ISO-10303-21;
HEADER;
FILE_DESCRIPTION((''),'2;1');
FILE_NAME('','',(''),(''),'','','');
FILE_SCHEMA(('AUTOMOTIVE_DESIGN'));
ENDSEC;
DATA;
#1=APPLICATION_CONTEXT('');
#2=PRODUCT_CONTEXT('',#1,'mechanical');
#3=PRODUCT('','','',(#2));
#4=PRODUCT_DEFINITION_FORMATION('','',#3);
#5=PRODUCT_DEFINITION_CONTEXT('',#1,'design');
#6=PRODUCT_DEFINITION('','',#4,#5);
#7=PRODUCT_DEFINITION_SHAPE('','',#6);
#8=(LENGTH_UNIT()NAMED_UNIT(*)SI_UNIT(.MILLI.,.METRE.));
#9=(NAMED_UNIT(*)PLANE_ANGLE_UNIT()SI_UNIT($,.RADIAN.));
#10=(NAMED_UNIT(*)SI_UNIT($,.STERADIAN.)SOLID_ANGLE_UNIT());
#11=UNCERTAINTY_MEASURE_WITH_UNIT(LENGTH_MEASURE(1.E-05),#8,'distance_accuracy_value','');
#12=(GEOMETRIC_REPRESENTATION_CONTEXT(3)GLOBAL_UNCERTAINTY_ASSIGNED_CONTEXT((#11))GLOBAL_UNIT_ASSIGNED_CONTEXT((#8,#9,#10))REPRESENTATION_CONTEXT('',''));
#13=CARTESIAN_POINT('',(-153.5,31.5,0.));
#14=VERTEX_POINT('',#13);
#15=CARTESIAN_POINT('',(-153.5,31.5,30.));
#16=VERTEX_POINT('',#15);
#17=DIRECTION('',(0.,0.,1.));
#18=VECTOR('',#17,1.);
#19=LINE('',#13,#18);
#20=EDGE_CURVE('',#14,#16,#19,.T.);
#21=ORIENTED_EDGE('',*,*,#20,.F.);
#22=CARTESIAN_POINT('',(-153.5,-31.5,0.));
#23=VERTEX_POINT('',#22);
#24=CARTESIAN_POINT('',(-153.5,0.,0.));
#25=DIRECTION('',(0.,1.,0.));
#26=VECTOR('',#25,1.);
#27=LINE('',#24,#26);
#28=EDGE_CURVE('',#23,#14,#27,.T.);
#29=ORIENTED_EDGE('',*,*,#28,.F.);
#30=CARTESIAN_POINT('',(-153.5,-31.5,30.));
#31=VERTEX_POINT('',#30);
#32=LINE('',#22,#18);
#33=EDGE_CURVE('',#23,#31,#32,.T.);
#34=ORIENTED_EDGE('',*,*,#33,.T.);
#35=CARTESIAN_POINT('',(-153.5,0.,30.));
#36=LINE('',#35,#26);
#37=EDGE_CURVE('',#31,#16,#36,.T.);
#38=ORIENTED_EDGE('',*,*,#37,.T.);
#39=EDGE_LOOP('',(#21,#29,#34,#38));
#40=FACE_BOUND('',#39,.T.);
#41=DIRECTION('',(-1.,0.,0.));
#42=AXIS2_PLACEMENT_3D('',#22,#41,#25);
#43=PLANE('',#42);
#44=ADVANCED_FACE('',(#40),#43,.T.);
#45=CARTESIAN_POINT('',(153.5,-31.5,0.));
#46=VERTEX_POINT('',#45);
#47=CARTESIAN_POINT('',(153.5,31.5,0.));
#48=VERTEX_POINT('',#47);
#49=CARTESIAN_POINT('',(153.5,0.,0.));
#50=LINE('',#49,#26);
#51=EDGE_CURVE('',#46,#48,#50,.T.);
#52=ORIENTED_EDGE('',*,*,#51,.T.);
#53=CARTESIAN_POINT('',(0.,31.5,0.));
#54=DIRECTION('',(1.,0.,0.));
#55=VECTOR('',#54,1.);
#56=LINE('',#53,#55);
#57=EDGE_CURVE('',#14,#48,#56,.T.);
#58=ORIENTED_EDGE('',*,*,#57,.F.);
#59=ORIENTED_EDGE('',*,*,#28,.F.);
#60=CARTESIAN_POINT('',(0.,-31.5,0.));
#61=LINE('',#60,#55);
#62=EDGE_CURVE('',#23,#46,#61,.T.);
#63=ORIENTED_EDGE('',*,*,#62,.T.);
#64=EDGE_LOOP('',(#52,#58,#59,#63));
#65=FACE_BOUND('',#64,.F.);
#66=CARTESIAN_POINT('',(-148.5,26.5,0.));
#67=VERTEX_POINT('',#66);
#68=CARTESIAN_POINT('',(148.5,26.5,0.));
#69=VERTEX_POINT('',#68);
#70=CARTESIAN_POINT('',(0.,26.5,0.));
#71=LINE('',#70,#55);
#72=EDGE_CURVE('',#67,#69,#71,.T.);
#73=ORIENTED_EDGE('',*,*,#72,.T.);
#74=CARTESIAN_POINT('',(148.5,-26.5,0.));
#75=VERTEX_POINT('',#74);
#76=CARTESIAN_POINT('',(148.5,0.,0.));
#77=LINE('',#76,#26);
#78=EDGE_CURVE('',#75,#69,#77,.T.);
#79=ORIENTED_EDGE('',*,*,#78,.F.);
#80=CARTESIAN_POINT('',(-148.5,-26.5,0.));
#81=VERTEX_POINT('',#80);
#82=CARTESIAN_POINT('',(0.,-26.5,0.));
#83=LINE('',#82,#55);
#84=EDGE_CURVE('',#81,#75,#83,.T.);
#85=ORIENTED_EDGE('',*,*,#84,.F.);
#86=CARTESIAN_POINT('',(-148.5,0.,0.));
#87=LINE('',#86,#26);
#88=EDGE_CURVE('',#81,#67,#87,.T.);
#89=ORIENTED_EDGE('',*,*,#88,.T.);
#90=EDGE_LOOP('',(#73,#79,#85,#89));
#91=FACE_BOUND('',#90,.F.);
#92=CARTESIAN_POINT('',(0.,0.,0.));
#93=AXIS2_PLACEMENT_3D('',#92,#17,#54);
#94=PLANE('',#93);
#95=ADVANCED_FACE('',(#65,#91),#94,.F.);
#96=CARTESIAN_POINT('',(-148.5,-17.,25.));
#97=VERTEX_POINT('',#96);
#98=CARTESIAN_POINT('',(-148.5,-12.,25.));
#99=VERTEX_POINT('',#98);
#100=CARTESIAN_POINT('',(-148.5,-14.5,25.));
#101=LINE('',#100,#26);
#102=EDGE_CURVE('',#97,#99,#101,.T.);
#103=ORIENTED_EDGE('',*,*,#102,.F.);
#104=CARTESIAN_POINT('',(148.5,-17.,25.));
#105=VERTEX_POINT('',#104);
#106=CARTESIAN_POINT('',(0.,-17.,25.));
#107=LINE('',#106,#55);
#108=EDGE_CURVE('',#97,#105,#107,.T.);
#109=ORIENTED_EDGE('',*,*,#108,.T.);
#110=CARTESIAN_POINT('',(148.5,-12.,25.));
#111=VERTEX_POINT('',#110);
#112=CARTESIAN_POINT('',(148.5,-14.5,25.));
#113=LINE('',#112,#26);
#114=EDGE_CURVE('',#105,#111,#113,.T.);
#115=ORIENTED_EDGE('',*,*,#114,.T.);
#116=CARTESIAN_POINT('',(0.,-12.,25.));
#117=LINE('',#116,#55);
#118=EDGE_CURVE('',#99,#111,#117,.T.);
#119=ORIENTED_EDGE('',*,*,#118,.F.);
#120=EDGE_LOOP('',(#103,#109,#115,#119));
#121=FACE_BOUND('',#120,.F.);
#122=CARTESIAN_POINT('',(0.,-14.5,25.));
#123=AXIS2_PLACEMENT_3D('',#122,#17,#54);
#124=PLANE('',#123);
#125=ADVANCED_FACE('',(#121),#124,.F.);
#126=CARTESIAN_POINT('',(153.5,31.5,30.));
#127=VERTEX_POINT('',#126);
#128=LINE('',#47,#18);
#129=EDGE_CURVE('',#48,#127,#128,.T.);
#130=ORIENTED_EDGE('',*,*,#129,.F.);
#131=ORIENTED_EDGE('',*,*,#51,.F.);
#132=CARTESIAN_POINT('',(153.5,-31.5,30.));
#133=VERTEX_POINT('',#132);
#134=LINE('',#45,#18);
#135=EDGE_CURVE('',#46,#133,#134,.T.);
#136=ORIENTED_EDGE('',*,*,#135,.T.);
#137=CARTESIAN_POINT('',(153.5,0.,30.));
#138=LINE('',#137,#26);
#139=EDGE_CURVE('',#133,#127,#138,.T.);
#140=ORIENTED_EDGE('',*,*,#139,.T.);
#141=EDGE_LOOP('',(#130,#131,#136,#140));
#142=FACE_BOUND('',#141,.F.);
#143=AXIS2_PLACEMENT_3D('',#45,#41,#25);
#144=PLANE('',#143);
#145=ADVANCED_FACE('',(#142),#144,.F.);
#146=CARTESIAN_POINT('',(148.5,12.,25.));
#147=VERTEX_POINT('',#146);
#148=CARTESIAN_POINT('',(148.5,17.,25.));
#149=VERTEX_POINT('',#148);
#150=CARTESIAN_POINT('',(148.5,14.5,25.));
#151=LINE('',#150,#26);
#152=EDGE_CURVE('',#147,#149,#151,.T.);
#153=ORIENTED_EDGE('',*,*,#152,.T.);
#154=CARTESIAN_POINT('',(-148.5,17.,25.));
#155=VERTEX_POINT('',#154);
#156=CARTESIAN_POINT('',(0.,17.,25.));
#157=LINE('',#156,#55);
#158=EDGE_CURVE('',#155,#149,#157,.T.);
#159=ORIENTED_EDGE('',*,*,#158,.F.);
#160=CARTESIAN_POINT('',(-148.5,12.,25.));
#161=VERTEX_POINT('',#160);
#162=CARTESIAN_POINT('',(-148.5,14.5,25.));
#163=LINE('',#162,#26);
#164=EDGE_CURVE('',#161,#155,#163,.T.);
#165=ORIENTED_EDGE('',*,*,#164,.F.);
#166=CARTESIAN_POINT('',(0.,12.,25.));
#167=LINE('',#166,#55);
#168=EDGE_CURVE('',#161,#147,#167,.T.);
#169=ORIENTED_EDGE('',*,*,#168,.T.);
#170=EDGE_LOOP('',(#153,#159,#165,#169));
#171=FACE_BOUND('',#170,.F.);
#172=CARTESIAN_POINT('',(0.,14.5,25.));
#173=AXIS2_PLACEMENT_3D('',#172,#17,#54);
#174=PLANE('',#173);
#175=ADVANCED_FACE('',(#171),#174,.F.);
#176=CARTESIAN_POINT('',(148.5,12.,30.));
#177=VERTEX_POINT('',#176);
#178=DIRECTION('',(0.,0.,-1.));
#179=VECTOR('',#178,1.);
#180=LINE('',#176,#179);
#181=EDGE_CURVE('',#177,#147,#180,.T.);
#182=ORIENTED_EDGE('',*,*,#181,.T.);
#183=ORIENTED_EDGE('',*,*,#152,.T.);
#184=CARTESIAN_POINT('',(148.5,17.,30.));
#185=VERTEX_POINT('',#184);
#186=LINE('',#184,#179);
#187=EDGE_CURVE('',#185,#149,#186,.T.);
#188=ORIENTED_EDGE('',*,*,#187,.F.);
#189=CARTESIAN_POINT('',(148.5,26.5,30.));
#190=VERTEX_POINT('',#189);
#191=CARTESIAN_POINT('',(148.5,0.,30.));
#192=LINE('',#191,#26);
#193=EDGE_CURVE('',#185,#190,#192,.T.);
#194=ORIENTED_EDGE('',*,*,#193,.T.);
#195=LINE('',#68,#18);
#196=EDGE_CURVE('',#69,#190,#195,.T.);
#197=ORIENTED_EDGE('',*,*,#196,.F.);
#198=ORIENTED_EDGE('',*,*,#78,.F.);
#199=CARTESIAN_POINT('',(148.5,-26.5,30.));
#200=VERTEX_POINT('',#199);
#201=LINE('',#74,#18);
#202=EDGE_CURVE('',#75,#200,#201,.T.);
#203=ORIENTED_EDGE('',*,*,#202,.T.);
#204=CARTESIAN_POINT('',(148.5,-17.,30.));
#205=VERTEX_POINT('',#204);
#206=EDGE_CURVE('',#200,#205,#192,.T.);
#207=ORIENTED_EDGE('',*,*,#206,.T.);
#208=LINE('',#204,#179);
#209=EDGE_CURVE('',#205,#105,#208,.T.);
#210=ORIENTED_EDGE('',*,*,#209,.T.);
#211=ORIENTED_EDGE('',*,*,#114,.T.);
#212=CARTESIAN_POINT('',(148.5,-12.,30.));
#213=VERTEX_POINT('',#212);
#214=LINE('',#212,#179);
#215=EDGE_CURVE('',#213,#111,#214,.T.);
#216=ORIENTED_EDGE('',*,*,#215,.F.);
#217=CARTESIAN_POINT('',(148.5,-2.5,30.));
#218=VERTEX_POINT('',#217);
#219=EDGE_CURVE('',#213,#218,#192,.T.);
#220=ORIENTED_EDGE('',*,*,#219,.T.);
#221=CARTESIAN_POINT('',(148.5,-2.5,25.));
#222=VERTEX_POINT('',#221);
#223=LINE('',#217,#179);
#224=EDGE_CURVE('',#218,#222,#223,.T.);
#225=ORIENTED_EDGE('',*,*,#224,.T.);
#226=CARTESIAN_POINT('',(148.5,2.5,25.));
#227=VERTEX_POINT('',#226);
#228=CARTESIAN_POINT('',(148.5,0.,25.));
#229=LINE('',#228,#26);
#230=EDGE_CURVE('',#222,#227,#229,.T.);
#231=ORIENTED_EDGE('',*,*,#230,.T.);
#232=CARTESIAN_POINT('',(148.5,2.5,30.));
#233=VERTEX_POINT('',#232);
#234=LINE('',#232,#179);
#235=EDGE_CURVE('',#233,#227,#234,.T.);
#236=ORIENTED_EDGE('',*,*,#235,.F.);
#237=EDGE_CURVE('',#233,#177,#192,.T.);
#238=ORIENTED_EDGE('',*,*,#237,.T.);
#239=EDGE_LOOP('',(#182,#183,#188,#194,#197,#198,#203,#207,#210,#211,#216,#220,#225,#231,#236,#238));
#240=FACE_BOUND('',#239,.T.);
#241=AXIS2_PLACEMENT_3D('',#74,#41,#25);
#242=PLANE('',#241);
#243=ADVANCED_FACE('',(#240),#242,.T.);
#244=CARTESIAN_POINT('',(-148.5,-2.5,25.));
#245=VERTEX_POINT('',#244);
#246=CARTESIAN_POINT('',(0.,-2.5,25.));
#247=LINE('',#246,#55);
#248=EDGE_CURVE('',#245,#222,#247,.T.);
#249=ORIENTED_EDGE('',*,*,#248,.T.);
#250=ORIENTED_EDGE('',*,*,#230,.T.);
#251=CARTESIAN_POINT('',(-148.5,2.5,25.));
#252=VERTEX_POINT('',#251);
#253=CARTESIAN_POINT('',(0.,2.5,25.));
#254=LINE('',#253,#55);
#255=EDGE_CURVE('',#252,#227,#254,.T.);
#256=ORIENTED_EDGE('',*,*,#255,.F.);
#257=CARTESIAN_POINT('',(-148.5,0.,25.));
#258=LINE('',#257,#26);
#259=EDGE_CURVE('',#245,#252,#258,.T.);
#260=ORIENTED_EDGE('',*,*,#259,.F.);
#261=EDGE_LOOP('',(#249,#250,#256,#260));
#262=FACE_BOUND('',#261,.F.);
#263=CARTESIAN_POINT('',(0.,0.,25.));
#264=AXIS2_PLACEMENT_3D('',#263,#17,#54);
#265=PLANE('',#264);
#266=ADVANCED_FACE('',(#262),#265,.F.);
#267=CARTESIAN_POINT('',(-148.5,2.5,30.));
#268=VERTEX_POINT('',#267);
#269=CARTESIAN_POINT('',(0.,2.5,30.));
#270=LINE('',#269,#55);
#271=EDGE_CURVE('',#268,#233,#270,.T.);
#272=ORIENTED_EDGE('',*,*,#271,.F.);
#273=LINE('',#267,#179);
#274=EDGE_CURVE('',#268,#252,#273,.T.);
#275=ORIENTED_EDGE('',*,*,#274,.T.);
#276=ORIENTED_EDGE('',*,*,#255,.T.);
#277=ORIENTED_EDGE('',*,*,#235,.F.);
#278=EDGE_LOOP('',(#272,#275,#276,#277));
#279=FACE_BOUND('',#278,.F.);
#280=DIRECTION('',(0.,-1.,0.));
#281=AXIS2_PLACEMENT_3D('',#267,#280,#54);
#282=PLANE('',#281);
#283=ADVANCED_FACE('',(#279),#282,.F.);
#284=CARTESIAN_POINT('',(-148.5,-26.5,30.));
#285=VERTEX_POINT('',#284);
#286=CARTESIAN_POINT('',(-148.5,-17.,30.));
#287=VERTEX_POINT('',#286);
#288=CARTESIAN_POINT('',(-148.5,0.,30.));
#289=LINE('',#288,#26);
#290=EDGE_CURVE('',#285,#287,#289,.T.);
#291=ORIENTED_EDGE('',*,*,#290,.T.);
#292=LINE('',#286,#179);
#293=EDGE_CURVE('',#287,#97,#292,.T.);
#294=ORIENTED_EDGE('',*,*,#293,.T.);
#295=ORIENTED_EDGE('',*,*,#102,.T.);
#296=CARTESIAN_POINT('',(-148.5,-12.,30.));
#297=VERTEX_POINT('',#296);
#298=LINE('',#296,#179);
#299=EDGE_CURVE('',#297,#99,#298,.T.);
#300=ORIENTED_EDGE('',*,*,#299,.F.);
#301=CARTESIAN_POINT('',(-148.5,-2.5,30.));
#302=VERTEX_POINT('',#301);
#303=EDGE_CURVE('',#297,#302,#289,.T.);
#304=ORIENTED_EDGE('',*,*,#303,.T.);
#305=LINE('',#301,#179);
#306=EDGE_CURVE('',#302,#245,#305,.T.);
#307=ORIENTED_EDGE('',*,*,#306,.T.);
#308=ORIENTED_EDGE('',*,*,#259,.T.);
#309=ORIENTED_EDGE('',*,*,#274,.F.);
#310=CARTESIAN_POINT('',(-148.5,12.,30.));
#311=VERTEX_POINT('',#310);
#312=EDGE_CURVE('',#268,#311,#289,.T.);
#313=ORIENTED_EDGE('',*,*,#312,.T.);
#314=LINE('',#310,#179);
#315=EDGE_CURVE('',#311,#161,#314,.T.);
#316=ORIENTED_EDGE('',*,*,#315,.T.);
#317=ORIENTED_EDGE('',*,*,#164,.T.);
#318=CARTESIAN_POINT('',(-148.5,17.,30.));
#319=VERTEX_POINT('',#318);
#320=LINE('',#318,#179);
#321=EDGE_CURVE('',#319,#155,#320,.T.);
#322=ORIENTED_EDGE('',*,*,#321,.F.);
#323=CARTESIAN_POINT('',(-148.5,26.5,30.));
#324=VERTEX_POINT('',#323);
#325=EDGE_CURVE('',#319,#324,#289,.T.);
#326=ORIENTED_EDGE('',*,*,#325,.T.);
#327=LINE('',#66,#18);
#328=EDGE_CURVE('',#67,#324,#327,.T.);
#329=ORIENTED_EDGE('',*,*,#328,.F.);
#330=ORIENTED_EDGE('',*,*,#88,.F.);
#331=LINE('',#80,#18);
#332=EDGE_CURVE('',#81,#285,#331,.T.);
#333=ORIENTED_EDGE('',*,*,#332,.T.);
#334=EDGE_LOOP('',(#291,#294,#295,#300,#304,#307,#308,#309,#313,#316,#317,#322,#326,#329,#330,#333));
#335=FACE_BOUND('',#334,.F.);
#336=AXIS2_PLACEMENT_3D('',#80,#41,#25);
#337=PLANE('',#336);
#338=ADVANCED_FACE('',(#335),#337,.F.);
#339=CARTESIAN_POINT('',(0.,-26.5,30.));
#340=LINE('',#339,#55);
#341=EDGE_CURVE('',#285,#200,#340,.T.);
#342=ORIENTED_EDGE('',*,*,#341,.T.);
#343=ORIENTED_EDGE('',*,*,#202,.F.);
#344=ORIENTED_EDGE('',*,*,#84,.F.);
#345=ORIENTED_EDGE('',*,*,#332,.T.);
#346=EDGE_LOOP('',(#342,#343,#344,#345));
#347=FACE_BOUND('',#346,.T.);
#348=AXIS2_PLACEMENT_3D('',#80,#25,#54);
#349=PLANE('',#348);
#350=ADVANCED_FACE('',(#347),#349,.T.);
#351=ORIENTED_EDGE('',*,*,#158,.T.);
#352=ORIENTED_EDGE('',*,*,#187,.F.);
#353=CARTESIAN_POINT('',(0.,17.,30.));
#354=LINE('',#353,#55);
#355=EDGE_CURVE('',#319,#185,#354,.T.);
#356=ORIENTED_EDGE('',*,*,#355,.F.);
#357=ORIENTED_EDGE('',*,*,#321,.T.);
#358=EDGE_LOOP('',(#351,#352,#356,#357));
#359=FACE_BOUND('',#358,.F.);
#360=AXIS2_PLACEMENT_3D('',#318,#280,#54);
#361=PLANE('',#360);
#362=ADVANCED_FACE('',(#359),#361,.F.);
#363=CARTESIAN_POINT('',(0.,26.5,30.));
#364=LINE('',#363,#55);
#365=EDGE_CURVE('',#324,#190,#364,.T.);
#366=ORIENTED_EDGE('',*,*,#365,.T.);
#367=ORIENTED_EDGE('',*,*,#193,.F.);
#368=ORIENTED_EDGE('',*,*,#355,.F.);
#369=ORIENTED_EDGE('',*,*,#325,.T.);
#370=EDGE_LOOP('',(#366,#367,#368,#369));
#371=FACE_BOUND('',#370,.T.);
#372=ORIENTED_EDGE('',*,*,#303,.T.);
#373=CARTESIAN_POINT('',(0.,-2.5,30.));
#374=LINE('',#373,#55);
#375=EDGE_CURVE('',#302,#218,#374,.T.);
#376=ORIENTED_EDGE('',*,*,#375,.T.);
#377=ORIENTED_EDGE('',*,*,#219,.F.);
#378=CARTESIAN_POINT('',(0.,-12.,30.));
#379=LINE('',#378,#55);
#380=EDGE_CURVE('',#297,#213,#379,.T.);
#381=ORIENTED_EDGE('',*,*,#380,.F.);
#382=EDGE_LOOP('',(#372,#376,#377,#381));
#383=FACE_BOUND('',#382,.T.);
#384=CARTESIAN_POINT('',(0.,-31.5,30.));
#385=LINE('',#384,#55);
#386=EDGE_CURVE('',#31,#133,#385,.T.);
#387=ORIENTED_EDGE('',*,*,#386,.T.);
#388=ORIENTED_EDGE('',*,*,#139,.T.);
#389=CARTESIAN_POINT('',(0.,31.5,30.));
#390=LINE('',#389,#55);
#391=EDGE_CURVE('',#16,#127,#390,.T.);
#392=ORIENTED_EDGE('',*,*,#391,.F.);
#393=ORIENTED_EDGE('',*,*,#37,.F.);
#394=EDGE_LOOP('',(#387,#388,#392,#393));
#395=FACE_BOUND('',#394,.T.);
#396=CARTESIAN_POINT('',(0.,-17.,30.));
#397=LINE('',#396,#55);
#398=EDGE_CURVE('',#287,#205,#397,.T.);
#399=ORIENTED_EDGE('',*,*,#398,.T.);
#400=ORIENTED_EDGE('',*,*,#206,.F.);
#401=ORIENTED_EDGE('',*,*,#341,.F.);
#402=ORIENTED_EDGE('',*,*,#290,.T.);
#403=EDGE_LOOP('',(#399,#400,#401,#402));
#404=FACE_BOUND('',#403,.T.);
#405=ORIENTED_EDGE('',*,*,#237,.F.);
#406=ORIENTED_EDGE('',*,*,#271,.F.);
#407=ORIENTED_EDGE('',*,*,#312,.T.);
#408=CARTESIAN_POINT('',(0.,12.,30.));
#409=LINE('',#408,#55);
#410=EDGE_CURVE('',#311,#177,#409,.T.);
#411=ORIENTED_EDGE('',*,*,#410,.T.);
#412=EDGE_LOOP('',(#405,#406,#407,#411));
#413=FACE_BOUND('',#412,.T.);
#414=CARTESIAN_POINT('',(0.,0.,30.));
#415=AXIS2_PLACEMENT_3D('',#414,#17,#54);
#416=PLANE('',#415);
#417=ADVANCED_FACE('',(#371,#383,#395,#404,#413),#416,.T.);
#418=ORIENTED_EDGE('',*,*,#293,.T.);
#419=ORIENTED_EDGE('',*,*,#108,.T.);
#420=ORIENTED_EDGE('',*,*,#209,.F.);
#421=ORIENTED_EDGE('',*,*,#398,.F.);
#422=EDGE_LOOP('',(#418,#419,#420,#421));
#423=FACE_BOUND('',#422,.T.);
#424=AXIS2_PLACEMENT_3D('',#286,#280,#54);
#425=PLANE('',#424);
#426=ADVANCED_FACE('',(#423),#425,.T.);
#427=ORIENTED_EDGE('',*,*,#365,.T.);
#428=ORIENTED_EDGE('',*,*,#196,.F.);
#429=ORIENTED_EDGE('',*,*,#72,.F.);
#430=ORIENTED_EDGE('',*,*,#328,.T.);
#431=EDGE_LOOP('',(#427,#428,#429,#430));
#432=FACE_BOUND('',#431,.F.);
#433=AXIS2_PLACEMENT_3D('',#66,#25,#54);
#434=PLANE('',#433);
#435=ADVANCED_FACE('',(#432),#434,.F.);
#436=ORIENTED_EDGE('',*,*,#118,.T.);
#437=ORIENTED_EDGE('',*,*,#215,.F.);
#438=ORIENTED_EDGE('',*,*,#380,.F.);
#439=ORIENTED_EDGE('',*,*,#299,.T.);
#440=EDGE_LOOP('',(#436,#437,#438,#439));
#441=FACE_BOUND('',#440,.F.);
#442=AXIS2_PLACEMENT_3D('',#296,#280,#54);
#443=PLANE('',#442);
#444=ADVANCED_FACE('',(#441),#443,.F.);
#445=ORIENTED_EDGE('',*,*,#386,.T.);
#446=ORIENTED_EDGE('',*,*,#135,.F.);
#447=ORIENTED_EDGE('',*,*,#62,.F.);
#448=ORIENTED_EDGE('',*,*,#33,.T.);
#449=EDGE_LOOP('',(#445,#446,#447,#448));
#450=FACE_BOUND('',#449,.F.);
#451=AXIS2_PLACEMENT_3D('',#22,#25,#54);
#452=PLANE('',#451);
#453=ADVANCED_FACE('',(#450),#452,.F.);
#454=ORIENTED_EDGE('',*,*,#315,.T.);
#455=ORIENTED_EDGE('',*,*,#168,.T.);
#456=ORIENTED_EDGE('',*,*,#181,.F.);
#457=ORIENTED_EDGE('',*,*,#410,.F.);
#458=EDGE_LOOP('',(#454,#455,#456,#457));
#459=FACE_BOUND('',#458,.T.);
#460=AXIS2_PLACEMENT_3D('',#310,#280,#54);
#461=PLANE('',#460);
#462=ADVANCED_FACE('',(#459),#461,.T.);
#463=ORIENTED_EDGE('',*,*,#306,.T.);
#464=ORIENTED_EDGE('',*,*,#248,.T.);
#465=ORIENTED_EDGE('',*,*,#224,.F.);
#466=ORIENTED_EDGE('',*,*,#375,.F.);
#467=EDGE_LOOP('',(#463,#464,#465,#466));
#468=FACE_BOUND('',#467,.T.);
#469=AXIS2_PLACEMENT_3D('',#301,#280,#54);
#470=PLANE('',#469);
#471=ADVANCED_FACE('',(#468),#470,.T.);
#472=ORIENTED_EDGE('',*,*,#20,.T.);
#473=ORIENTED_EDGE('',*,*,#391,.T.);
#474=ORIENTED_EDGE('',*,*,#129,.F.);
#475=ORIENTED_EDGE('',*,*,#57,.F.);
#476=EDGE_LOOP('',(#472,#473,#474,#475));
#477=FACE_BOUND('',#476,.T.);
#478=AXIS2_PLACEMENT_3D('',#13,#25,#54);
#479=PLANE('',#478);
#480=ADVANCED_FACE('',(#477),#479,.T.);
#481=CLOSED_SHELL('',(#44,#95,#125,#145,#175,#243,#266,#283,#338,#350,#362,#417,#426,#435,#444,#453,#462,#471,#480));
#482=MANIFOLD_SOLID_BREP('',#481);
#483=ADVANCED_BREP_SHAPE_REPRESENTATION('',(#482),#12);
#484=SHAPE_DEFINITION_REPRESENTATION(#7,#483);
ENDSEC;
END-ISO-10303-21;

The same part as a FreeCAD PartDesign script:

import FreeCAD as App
import Part
import Sketcher
from FreeCAD import Vector


def add_polygon(sketch, points):
    """Adds a closed chain of lines whose ends are joined by coincident constraints."""
    first, n = sketch.GeometryCount, len(points)
    for a, b in zip(points, points[1:] + points[:1]):
        sketch.addGeometry(Part.LineSegment(App.Vector(*a, 0), App.Vector(*b, 0)), False)
    for i in range(n):
        sketch.addConstraint(Sketcher.Constraint("Coincident", first + i, 2, first + (i + 1) % n, 1))

doc = App.newDocument("Part")
body = doc.addObject("PartDesign::Body", "Body")

# Sketch on XY plane
sketch1 = doc.addObject("Sketcher::SketchObject", "Sketch")
body.addObject(sketch1)
sketch1.AttachmentSupport = (doc.XY_Plane, [""])
sketch1.MapMode = "FlatFace"
add_polygon(sketch1, [(-153.5, 31.5), (-153.5, -31.5), (153.5, -31.5), (153.5, 31.5)])  # lines 0-3
add_polygon(sketch1, [(148.5, -26.5), (-148.5, -26.5), (-148.5, 26.5), (148.5, 26.5)])  # lines 4-7
sketch1.addConstraint([
    Sketcher.Constraint("Vertical", 0),
    Sketcher.Constraint("Horizontal", 1),
    Sketcher.Constraint("Vertical", 2),
    Sketcher.Constraint("Horizontal", 3),
    Sketcher.Constraint("Horizontal", 4),
    Sketcher.Constraint("Vertical", 5),
    Sketcher.Constraint("Horizontal", 6),
    Sketcher.Constraint("Vertical", 7),
    Sketcher.Constraint("Symmetric", 0, 2, 2, 2, -1, 1),
    Sketcher.Constraint("Symmetric", 4, 2, 6, 2, -1, 1),
    Sketcher.Constraint("DistanceX", 1, 1, 1, 2, 307.0),
    Sketcher.Constraint("DistanceX", 4, 2, 4, 1, 297.0),
    Sketcher.Constraint("DistanceY", 0, 2, 0, 1, 63.0),
    Sketcher.Constraint("DistanceY", 5, 1, 5, 2, 53.0),
])
pad1 = doc.addObject("PartDesign::Pad", "Pad")
body.addObject(pad1)
pad1.Profile = sketch1
pad1.Length = 30

# Sketch on XY plane
sketch2 = doc.addObject("Sketcher::SketchObject", "Sketch001")
body.addObject(sketch2)
sketch2.AttachmentSupport = (doc.XY_Plane, [""])
sketch2.MapMode = "FlatFace"
sketch2.AttachmentOffset = App.Placement(Vector(0, 0, 30), App.Rotation())
add_polygon(sketch2, [(-148.5, 17), (-148.5, 12), (148.5, 12), (148.5, 17)])  # lines 0-3
add_polygon(sketch2, [(-148.5, 2.5), (-148.5, -2.5), (148.5, -2.5), (148.5, 2.5)])  # lines 4-7
add_polygon(sketch2, [(-148.5, -12), (-148.5, -17), (148.5, -17), (148.5, -12)])  # lines 8-11
sketch2.addConstraint([
    Sketcher.Constraint("Vertical", 0),
    Sketcher.Constraint("Horizontal", 1),
    Sketcher.Constraint("Vertical", 2),
    Sketcher.Constraint("Horizontal", 3),
    Sketcher.Constraint("Vertical", 4),
    Sketcher.Constraint("Horizontal", 5),
    Sketcher.Constraint("Vertical", 6),
    Sketcher.Constraint("Horizontal", 7),
    Sketcher.Constraint("Vertical", 8),
    Sketcher.Constraint("Horizontal", 9),
    Sketcher.Constraint("Vertical", 10),
    Sketcher.Constraint("Horizontal", 11),
    Sketcher.Constraint("Symmetric", 4, 2, 6, 2, -1, 1),
    Sketcher.Constraint("Symmetric", 2, 2, 8, 2, -1, 1),
    Sketcher.Constraint("Symmetric", 0, 2, 10, 2, -1, 1),
    Sketcher.Constraint("Vertical", 3, 2, 4, 2),
    Sketcher.Constraint("Vertical", 2, 2, 5, 2),
    Sketcher.Constraint("Equal", 2, 4),
    Sketcher.Constraint("DistanceX", 1, 1, 1, 2, 297.0),
    Sketcher.Constraint("DistanceY", 0, 2, 0, 1, 5.0),
    Sketcher.Constraint("DistanceY", -1, 1, 0, 2, 12.0),
])
pad2 = doc.addObject("PartDesign::Pad", "Pad001")
body.addObject(pad2)
pad2.Profile = sketch2
pad2.Length = 5
pad2.Reversed = True

doc.recompute()
